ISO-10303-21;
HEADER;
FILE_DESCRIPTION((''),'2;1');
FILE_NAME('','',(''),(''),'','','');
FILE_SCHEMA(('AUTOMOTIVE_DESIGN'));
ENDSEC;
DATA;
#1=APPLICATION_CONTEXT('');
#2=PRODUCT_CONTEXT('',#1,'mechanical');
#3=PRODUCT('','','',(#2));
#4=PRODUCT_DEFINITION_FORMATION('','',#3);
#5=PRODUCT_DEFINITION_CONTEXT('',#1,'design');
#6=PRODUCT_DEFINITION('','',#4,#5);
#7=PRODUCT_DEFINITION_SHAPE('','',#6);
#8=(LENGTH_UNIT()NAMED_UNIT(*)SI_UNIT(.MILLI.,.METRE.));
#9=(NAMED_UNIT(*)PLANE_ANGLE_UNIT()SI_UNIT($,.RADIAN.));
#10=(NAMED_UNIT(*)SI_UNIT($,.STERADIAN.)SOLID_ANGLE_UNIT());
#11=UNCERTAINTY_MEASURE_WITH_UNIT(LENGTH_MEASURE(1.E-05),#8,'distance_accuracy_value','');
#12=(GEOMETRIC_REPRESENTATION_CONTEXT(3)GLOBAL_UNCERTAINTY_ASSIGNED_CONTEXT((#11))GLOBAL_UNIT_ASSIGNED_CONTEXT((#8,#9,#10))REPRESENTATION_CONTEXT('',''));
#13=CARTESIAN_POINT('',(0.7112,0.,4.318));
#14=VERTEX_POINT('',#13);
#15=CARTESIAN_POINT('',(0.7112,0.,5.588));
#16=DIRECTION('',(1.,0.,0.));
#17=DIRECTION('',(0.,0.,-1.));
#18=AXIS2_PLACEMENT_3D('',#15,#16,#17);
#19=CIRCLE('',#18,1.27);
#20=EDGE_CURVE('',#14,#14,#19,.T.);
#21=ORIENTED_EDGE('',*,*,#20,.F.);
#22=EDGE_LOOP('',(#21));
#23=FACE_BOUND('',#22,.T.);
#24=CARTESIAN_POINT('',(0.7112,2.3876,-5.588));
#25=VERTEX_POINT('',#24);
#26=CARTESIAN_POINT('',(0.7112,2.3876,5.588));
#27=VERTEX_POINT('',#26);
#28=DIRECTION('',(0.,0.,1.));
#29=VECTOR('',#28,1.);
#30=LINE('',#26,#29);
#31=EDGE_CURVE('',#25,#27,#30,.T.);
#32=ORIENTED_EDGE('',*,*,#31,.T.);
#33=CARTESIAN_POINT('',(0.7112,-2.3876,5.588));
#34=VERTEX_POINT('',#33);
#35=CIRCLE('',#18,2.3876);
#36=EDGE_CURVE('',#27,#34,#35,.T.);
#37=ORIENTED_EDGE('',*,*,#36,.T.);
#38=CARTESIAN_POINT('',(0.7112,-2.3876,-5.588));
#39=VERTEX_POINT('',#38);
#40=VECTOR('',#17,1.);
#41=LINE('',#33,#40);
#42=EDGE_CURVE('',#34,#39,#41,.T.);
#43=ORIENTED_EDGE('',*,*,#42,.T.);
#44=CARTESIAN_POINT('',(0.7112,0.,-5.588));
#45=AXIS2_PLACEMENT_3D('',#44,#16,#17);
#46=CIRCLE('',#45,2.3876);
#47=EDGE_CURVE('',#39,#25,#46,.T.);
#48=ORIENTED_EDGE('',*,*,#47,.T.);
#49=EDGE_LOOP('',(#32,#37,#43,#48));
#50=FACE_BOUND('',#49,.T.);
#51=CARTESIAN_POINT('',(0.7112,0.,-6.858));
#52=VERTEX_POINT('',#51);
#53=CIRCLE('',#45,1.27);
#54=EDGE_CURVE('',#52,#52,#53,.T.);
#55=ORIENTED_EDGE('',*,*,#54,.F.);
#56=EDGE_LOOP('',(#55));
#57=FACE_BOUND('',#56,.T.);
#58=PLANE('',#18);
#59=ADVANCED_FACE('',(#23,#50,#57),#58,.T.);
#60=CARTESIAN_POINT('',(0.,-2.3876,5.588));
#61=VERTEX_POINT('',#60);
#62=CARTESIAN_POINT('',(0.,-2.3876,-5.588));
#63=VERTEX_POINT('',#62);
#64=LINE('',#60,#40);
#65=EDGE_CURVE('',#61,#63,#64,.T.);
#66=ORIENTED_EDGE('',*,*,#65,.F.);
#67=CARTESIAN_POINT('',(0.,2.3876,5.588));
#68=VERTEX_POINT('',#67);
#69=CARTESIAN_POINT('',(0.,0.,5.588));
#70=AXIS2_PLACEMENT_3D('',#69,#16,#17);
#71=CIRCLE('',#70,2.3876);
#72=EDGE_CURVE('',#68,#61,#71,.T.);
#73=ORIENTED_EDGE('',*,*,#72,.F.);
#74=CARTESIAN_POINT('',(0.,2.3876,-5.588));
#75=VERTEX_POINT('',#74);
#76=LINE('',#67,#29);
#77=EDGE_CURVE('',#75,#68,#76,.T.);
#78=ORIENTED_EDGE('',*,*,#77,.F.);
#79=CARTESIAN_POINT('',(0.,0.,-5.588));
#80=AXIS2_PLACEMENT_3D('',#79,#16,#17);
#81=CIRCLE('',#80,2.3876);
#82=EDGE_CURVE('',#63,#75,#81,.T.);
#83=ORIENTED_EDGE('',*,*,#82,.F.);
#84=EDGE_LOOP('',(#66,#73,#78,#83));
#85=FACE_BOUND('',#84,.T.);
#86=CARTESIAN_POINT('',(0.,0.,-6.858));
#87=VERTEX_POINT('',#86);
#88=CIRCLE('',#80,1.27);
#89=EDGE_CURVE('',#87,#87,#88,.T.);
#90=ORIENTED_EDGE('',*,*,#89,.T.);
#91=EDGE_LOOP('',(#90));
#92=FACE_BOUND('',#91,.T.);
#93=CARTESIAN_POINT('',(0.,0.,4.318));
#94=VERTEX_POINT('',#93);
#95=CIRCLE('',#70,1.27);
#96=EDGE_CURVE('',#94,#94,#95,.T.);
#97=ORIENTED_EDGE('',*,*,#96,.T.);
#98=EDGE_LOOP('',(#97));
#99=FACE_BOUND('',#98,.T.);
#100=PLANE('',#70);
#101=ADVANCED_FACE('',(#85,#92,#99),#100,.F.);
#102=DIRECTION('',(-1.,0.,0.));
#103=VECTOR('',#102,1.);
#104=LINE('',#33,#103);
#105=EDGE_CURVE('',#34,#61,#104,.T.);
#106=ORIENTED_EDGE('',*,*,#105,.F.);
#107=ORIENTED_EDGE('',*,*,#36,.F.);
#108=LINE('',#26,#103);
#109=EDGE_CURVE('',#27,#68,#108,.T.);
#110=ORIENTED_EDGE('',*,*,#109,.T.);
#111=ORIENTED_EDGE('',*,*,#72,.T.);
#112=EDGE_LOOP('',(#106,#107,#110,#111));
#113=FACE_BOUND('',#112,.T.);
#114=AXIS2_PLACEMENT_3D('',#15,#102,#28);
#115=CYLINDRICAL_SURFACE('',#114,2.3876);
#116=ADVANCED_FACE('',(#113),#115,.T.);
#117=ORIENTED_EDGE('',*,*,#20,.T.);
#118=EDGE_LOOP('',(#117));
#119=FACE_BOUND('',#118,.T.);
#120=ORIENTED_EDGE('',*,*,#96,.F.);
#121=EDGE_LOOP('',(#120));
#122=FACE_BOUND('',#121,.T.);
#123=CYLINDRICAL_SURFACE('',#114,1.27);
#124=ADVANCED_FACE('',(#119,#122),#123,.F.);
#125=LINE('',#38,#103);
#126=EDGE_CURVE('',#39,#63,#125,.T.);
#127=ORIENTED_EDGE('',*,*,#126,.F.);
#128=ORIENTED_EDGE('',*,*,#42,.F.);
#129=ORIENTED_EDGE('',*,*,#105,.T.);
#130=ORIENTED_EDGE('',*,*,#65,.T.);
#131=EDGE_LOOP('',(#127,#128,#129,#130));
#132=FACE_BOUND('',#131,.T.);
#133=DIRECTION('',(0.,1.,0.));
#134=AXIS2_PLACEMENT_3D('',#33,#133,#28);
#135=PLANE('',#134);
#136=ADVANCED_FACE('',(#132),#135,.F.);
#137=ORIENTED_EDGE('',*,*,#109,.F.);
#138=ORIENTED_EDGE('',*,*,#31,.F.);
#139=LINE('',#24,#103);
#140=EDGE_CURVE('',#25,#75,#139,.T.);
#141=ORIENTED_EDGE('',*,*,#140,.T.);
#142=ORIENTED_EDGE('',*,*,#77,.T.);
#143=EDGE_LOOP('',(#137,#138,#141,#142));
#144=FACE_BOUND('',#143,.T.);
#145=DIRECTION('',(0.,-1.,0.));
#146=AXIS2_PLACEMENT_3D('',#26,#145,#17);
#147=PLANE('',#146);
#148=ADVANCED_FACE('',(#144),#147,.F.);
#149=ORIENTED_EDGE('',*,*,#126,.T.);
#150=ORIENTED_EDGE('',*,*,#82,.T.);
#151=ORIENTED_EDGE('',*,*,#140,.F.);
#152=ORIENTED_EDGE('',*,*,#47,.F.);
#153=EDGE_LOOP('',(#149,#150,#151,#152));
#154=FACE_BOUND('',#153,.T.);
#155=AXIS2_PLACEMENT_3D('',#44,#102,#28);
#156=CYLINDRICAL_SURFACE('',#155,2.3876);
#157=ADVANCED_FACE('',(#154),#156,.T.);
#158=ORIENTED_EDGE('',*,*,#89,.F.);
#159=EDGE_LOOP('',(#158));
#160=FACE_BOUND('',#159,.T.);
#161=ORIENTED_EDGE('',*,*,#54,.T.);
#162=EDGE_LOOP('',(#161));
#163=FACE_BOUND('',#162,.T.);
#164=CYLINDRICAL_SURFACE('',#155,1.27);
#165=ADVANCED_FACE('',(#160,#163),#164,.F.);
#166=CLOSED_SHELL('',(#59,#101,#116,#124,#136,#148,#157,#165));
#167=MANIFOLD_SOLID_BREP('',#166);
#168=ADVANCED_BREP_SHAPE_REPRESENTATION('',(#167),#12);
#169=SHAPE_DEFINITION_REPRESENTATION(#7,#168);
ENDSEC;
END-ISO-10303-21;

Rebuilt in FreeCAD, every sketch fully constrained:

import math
import FreeCAD as App
import Part
import Sketcher
from FreeCAD import Vector
Q = App.Units.Quantity

doc = App.newDocument("Part")
body = doc.addObject("PartDesign::Body", "Body")

# Sketch on YZ plane
sketch1 = doc.addObject("Sketcher::SketchObject", "Sketch")
body.addObject(sketch1)
sketch1.AttachmentSupport = (doc.YZ_Plane, [""])
sketch1.MapMode = "FlatFace"
sketch1.addGeometry([
    Part.LineSegment(Vector(2.4, -5.6, 0), Vector(2.4, 5.6, 0)),  # 0
    Part.ArcOfCircle(Part.Circle(Vector(0, 5.6, 0), Vector(0, 0, 1), 2.4), math.radians(0), math.radians(180)),  # 1
    Part.LineSegment(Vector(-2.4, 5.6, 0), Vector(-2.4, -5.6, 0)),  # 2
    Part.ArcOfCircle(Part.Circle(Vector(0, -5.6, 0), Vector(0, 0, 1), 2.4), math.radians(180), math.radians(360)),  # 3
    Part.Circle(Vector(0, -5.6, 0), Vector(0, 0, 1), 1.3),  # 4
    Part.Circle(Vector(0, 5.6, 0), Vector(0, 0, 1), 1.3),  # 5
], False)
sketch1.addConstraint([
    Sketcher.Constraint("Tangent", 0, 2, 1, 1),
    Sketcher.Constraint("Tangent", 1, 2, 2, 1),
    Sketcher.Constraint("Tangent", 2, 2, 3, 1),
    Sketcher.Constraint("Tangent", 3, 2, 0, 1),
    Sketcher.Constraint("Vertical", 0),
    Sketcher.Constraint("Vertical", 2),
    Sketcher.Constraint("Coincident", 4, 3, 3, 3),
    Sketcher.Constraint("Coincident", 5, 3, 1, 3),
    Sketcher.Constraint("Equal", 4, 5),
    Sketcher.Constraint("Symmetric", 1, 3, 3, 3, -1, 1),
    Sketcher.Constraint("Diameter", 4, Q("0.1 in")),
    Sketcher.Constraint("Radius", 1, Q("0.094 in")),
    Sketcher.Constraint("DistanceY", 0, 1, 0, 2, Q("0.44 in")),
])
pad1 = doc.addObject("PartDesign::Pad", "Pad")
body.addObject(pad1)
pad1.Profile = sketch1
pad1.Length = Q("0.028 in")

doc.recompute()
